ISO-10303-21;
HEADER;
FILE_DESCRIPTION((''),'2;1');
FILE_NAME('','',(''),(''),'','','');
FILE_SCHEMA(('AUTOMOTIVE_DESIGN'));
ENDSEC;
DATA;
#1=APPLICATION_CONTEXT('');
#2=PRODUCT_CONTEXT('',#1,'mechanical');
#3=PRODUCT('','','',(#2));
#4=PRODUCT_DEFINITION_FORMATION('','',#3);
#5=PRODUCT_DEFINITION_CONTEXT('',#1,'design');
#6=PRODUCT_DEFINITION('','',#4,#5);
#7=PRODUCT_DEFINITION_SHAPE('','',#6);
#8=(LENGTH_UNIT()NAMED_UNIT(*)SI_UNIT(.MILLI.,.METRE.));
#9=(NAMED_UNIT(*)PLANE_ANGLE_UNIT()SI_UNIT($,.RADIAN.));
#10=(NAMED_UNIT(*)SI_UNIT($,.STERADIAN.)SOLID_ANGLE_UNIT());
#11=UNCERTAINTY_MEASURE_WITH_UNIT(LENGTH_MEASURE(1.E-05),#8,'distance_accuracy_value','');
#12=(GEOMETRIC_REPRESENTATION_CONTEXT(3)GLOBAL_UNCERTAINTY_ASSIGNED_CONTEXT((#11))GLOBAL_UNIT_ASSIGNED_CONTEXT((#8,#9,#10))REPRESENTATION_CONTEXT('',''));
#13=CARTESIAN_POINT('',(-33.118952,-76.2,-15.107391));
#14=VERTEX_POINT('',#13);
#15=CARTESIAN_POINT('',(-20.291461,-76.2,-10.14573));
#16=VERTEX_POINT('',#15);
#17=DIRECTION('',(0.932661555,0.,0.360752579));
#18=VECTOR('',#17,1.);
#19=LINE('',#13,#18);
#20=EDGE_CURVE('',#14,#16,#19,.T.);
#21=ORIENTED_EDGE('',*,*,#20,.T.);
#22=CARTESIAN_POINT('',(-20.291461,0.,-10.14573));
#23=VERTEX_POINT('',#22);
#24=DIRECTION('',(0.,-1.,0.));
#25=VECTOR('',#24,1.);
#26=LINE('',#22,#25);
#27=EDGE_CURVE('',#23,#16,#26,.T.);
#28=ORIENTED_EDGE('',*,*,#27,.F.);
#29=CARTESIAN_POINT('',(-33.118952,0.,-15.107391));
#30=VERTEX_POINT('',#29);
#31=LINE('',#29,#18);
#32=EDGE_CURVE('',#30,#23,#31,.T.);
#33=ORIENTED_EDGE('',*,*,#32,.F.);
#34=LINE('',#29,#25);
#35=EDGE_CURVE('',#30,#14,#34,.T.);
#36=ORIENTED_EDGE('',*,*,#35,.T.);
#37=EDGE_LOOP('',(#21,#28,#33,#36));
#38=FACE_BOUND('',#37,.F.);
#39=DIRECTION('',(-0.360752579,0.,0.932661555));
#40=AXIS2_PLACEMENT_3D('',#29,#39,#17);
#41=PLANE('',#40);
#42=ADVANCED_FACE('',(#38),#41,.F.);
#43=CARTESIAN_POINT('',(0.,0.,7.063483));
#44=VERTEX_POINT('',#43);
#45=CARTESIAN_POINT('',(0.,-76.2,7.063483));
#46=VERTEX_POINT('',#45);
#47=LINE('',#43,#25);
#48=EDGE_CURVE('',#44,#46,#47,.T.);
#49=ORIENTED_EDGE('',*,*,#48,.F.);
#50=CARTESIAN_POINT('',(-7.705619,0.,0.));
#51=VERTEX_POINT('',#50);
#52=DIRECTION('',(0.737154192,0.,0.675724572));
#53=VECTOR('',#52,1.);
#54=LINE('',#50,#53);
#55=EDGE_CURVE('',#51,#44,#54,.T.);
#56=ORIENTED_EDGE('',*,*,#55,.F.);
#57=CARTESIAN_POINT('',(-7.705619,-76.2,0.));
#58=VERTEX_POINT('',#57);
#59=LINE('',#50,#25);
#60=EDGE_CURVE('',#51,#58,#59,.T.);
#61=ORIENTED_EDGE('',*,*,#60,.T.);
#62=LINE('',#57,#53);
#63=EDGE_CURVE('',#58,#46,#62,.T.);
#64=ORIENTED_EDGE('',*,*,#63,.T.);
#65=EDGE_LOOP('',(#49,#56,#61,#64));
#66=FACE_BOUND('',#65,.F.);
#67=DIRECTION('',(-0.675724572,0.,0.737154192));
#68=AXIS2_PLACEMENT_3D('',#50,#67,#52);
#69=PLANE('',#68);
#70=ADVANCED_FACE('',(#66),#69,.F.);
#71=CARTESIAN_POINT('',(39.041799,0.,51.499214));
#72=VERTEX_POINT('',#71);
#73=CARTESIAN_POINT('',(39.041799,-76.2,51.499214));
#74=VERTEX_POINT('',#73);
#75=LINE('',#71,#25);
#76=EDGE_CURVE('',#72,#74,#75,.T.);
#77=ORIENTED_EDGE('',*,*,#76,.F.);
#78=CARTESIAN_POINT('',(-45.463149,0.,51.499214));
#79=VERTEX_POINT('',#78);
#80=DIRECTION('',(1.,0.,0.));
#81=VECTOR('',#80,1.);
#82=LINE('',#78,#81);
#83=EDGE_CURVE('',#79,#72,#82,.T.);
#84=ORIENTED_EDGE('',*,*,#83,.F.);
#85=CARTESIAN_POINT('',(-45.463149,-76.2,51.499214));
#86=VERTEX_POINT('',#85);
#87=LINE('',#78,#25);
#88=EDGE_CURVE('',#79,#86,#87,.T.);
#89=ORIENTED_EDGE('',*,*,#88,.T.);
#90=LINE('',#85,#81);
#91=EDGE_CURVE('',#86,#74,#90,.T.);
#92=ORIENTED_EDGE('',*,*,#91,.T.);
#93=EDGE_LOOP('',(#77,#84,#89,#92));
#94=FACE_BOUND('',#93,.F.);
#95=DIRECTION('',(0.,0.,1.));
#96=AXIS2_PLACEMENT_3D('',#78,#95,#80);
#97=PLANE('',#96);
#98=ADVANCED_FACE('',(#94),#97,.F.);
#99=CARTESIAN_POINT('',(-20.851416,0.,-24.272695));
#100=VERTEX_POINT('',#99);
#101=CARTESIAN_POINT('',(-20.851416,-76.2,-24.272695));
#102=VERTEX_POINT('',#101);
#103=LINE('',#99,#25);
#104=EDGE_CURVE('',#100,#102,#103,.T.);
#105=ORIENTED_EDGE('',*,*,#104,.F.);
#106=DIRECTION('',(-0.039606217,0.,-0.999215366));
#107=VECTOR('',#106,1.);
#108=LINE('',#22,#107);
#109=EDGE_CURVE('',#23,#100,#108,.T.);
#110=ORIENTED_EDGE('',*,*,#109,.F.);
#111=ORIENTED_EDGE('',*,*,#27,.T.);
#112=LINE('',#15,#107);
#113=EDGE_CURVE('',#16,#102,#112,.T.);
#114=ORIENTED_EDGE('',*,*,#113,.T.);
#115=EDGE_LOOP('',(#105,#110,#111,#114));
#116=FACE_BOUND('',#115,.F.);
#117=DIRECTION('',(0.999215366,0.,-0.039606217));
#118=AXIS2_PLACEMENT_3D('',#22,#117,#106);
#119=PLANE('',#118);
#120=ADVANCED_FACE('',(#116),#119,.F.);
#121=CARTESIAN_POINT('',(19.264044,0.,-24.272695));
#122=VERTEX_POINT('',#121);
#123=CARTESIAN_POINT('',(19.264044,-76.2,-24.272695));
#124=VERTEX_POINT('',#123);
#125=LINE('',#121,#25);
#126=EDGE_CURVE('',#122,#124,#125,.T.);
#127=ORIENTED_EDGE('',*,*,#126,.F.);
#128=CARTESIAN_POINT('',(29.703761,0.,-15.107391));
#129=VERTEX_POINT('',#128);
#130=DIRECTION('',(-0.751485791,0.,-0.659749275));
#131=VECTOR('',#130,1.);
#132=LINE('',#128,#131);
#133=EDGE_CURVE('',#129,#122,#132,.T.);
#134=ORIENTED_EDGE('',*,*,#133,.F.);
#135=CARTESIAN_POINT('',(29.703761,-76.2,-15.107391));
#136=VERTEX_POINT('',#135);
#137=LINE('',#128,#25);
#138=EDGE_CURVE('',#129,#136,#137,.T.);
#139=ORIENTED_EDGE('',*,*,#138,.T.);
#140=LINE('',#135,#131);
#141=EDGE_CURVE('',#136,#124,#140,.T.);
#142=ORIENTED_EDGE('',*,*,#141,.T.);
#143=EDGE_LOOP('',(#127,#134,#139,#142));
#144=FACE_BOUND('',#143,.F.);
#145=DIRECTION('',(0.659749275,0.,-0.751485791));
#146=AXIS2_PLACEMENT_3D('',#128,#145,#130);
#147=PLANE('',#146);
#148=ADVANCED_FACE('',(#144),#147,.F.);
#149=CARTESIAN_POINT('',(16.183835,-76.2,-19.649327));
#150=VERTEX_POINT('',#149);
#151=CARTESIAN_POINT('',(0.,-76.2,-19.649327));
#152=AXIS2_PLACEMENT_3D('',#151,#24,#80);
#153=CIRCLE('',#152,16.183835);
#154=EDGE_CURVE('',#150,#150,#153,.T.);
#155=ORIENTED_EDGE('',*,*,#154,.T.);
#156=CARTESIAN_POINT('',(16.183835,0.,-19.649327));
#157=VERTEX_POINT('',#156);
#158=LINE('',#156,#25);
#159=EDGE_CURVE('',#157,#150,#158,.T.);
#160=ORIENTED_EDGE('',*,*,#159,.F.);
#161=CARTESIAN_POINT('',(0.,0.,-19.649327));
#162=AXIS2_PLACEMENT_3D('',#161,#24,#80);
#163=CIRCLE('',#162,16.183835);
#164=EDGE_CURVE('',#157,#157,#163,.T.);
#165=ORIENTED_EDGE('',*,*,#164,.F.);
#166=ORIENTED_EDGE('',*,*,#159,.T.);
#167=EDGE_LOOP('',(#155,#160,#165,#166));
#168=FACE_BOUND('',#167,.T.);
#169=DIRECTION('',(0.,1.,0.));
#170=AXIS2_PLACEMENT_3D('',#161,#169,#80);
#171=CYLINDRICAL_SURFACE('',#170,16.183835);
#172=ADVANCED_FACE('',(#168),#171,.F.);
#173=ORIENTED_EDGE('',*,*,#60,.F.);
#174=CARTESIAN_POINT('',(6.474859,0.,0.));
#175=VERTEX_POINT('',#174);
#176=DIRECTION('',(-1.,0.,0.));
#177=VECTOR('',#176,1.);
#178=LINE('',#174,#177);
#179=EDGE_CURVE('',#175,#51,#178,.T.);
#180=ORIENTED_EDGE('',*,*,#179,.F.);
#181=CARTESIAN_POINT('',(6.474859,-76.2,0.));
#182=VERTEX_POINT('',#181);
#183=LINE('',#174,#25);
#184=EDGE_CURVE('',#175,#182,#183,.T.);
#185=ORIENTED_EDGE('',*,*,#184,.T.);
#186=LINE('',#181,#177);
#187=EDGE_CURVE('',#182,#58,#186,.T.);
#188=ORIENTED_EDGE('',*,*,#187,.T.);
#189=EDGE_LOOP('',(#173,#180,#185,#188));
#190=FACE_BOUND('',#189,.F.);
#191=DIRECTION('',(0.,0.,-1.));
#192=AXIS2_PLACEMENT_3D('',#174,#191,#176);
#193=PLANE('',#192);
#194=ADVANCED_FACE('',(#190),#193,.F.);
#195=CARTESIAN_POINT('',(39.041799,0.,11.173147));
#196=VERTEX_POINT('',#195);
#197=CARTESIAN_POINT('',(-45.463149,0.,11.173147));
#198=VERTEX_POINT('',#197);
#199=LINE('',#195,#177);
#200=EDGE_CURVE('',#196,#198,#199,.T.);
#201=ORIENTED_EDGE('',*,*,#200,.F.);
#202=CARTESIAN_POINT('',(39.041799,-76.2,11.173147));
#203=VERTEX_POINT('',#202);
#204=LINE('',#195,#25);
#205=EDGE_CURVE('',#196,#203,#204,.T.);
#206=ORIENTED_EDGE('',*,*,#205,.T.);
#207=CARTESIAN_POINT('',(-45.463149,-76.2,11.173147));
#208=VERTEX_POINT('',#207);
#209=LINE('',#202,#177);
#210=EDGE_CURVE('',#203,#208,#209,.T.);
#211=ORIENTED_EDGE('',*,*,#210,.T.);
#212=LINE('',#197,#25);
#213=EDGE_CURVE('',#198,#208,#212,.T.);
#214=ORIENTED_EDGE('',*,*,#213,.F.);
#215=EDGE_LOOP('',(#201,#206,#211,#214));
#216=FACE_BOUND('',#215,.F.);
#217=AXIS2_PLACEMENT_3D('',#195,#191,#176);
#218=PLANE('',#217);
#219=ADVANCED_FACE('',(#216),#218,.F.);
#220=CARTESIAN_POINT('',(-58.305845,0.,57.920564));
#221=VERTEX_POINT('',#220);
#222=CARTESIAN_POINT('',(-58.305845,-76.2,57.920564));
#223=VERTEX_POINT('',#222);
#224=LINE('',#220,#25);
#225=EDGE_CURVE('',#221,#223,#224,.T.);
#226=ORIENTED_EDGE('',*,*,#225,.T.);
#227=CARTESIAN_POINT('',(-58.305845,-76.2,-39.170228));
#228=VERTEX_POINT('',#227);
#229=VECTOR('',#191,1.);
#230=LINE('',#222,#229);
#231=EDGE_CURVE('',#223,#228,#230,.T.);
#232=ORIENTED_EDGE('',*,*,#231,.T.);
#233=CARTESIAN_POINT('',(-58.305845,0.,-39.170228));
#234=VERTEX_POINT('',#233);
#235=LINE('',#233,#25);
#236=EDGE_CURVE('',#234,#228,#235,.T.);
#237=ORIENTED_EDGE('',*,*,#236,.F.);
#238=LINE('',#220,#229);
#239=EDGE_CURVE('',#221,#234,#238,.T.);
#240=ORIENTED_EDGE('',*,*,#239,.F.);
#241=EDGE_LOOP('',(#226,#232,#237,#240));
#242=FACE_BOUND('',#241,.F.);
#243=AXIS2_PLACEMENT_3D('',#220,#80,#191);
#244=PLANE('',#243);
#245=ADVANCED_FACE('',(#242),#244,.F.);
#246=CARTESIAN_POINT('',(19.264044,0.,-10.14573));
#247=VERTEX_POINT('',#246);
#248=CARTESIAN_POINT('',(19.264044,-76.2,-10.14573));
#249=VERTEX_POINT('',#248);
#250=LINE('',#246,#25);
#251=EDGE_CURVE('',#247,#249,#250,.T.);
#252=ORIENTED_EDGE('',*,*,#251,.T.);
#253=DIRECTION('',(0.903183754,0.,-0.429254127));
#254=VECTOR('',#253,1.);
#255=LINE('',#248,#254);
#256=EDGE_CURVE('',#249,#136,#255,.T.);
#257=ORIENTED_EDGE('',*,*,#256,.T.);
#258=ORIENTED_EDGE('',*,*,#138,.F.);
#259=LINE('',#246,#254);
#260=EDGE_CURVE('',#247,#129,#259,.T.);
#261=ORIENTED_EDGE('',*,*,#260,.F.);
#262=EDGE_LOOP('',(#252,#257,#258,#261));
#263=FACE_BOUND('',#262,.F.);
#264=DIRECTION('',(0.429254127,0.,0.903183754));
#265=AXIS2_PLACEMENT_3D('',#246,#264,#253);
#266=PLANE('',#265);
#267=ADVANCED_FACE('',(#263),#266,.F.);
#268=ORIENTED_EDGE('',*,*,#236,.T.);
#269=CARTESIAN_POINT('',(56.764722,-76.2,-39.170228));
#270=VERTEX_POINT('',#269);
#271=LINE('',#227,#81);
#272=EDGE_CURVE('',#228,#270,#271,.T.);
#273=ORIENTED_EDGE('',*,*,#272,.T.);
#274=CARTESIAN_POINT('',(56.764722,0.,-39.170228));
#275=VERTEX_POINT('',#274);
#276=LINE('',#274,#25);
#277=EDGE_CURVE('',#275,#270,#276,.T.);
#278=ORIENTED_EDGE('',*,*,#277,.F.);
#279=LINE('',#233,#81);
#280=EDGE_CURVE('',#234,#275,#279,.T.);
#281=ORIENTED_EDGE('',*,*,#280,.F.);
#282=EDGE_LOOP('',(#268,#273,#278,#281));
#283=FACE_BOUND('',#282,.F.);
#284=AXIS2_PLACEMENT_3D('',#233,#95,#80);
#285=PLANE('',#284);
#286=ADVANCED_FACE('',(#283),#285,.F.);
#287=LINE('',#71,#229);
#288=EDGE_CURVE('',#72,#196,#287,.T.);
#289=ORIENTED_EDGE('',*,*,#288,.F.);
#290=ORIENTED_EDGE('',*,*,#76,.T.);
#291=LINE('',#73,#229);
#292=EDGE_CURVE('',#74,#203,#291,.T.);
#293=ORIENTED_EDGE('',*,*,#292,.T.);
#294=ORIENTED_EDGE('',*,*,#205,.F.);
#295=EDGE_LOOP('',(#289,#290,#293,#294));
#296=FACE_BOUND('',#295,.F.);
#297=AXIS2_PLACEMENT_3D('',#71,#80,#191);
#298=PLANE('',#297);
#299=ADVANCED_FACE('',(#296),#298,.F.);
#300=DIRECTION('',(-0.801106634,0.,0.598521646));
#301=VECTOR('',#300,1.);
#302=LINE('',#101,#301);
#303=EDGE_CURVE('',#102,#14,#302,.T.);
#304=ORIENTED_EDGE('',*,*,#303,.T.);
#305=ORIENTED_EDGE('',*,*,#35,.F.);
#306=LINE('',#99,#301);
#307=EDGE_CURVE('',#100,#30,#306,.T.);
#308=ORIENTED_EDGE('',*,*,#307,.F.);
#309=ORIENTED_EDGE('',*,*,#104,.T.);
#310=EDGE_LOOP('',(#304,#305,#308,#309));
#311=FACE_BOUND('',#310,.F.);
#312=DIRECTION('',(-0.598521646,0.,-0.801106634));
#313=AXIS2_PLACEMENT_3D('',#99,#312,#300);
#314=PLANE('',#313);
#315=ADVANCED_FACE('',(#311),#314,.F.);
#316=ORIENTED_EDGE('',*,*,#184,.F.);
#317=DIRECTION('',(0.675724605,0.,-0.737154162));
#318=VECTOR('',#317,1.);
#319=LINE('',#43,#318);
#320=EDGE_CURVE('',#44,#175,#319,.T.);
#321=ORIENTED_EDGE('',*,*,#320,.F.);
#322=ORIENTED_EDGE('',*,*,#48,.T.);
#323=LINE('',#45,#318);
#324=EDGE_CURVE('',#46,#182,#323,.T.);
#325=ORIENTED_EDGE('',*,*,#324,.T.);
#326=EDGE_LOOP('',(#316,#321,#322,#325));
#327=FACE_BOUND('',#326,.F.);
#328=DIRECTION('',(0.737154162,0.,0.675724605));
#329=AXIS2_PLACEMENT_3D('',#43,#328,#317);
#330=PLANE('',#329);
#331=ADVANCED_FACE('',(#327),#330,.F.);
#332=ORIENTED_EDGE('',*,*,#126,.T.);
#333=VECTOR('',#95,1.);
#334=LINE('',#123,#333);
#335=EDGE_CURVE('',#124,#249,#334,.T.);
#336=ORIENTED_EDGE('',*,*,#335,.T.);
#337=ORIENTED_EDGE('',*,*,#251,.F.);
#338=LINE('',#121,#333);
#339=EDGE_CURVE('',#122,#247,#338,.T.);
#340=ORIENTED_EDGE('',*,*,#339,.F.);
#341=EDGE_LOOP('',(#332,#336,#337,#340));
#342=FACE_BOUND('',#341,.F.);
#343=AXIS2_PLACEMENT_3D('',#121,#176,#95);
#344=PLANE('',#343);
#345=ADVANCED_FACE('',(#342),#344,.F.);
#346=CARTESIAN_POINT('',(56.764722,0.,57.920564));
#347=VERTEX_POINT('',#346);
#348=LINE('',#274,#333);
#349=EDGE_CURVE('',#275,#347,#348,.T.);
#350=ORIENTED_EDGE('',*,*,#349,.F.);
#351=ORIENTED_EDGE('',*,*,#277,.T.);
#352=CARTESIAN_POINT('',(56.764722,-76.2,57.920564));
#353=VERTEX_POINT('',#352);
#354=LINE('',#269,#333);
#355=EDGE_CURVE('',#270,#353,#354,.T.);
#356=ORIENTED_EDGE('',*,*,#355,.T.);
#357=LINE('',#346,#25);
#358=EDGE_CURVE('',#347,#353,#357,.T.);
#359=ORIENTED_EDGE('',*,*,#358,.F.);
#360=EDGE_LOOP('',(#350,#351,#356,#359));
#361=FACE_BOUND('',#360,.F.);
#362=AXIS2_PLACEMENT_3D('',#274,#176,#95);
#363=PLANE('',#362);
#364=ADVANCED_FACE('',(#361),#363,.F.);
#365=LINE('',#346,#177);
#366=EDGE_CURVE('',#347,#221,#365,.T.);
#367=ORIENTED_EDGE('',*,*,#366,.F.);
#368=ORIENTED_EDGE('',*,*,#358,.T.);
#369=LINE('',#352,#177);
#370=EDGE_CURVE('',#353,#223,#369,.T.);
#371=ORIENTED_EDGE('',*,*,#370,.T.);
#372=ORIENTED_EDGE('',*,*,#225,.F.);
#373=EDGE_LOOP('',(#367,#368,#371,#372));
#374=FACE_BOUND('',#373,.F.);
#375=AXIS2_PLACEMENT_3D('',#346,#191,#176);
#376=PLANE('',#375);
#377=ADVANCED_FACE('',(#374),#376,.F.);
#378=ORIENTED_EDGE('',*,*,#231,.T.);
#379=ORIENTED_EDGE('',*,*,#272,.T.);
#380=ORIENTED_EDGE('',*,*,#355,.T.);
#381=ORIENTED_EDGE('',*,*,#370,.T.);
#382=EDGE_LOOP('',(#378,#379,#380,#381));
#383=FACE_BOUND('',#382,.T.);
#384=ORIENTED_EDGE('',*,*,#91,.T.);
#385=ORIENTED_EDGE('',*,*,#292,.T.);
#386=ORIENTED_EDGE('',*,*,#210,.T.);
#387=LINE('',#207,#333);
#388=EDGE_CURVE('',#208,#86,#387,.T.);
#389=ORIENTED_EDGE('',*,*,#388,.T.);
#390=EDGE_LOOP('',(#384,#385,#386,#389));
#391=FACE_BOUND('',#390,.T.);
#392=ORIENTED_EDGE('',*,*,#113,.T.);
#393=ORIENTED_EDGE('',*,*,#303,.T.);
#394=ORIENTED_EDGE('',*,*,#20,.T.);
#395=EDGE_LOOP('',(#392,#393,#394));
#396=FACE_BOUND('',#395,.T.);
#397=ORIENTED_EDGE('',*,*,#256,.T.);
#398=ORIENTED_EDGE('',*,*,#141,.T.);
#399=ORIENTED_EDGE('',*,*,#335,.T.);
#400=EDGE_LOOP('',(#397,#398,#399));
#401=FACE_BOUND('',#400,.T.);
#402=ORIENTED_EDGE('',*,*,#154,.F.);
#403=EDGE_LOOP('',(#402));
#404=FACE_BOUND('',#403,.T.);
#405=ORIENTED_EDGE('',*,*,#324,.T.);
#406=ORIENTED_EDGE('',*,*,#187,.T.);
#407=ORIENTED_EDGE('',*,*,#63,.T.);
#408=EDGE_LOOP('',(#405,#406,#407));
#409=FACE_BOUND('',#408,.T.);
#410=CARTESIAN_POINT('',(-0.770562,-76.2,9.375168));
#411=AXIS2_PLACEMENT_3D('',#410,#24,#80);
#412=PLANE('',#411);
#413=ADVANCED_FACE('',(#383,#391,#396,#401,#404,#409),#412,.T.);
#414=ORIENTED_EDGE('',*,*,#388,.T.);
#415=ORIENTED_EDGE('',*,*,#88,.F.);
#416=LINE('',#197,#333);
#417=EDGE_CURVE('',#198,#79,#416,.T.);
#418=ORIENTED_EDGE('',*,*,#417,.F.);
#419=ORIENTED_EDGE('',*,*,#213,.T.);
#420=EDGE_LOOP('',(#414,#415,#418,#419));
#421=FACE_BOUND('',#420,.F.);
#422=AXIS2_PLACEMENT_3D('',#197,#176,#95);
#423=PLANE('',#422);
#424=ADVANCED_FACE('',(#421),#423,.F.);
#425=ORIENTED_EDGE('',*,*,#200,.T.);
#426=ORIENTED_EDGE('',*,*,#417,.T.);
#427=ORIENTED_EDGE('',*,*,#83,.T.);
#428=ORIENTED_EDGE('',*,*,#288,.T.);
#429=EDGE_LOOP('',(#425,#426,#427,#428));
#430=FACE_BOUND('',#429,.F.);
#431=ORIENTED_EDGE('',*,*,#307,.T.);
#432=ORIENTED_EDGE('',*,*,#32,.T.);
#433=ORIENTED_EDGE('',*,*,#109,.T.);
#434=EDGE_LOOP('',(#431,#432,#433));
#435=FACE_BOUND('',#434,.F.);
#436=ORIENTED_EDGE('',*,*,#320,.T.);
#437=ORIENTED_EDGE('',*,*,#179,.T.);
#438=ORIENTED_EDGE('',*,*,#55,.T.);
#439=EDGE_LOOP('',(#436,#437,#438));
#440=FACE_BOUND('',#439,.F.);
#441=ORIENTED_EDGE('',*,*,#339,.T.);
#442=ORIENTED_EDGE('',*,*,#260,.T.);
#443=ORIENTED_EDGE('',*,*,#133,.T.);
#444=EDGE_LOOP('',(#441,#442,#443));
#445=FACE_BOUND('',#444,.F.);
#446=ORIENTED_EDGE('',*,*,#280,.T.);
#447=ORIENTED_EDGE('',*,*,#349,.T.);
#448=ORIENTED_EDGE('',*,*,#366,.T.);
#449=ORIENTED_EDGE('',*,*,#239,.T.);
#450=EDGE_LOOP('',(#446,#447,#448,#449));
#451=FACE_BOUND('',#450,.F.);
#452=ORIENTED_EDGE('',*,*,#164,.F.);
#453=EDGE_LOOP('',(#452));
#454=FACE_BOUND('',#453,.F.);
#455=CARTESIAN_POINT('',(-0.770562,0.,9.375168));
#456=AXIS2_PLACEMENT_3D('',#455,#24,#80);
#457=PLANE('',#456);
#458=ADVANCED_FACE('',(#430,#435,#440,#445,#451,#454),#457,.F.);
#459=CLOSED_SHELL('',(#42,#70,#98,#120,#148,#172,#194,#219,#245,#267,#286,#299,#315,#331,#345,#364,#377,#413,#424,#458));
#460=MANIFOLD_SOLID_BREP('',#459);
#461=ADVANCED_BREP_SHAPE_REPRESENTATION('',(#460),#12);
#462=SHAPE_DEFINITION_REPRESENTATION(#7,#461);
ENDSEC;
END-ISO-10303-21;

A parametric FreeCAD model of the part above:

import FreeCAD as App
import Part
import Sketcher
from FreeCAD import Vector
Q = App.Units.Quantity


def add_polygon(sketch, points):
    """Adds a closed chain of lines whose ends are joined by coincident constraints."""
    first, n = sketch.GeometryCount, len(points)
    for a, b in zip(points, points[1:] + points[:1]):
        sketch.addGeometry(Part.LineSegment(App.Vector(*a, 0), App.Vector(*b, 0)), False)
    for i in range(n):
        sketch.addConstraint(Sketcher.Constraint("Coincident", first + i, 2, first + (i + 1) % n, 1))

doc = App.newDocument("Part")
body = doc.addObject("PartDesign::Body", "Body")

# Sketch on XZ plane
sketch1 = body.newObject("Sketcher::SketchObject", "Sketch")
sketch1.AttachmentSupport = (doc.getObject("XZ_Plane"), [""])
sketch1.MapMode = "FlatFace"
add_polygon(sketch1, [(57, 58), (-58, 58), (-58, -39), (57, -39)])  # lines 0-3
add_polygon(sketch1, [(-21, -24), (-33, -15), (-20, -10)])  # lines 4-6
sketch1.addGeometry(Part.Circle(Vector(0, -20, 0), Vector(0, 0, 1), 16), False)  # 7
add_polygon(sketch1, [(30, -15), (19, -24), (19, -10)])  # lines 8-10
add_polygon(sketch1, [(0, 7), (6, 0), (-8, 0)])  # lines 11-13
add_polygon(sketch1, [(-45, 51), (39, 51), (39, 11), (-45, 11)])  # lines 14-17
sketch1.addConstraint(Sketcher.Constraint("Horizontal", 0))
sketch1.addConstraint(Sketcher.Constraint("Vertical", 1))
sketch1.addConstraint(Sketcher.Constraint("Horizontal", 2))
sketch1.addConstraint(Sketcher.Constraint("Vertical", 3))
sketch1.addConstraint(Sketcher.Constraint("Vertical", 9))
sketch1.addConstraint(Sketcher.Constraint("Horizontal", 12))
sketch1.addConstraint(Sketcher.Constraint("Horizontal", 14))
sketch1.addConstraint(Sketcher.Constraint("Vertical", 15))
sketch1.addConstraint(Sketcher.Constraint("Horizontal", 16))
sketch1.addConstraint(Sketcher.Constraint("Vertical", 17))
sketch1.addConstraint(Sketcher.Constraint("PointOnObject", 7, 3, -2))
sketch1.addConstraint(Sketcher.Constraint("PointOnObject", 11, 2, -1))
sketch1.addConstraint(Sketcher.Constraint("PointOnObject", 13, 2, -2))
sketch1.addConstraint(Sketcher.Constraint("Perpendicular", 11, 13))
sketch1.addConstraint(Sketcher.Constraint("Horizontal", 6, 2, 8, 2))
sketch1.addConstraint(Sketcher.Constraint("Horizontal", 5, 2, 9, 2))
sketch1.addConstraint(Sketcher.Constraint("Horizontal", 4, 2, 10, 2))
sketch1.addConstraint(Sketcher.Constraint("Diameter", 7, 32.36767))
sketch1.addConstraint(Sketcher.Constraint("Distance", 8, 13.892102))
sketch1.addConstraint(Sketcher.Constraint("Distance", 13, 10.453198))
sketch1.addConstraint(Sketcher.Constraint("DistanceX", 12, 2, 12, 1, 14.180478))
sketch1.addConstraint(Sketcher.Constraint("DistanceX", 14, 1, 14, 2, 84.504948))
sketch1.addConstraint(Sketcher.Constraint("DistanceY", 1, 2, 1, 1, 97.090792))
sketch1.addConstraint(Sketcher.Constraint("DistanceX", -1, 1, 14, 2, 39.041799))
sketch1.addConstraint(Sketcher.Constraint("DistanceY", 1, 2, 7, 3, 19.520901))
sketch1.addConstraint(Sketcher.Constraint("DistanceY", 1, 2, 5, 2, 29.024498))
sketch1.addConstraint(Sketcher.Constraint("DistanceX", 11, 2, 10, 2, 23.228902))
sketch1.addConstraint(Sketcher.Constraint("Distance", 5, 13.75364))
sketch1.addConstraint(Sketcher.Constraint("Distance", 6, 14.138058))
sketch1.addConstraint(Sketcher.Constraint("DistanceX", 0, 2, 0, 1, 115.070567))
sketch1.addConstraint(Sketcher.Constraint("DistanceY", 9, 1, 9, 2, 14.126965))
sketch1.addConstraint(Sketcher.Constraint("DistanceY", 15, 2, 15, 1, 40.326067))
sketch1.addConstraint(Sketcher.Constraint("DistanceY", 1, 2, -1, 1, 39.170228))
sketch1.addConstraint(Sketcher.Constraint("DistanceY", 4, 2, -1, 1, 15.107391))
sketch1.addConstraint(Sketcher.Constraint("DistanceX", 5, 2, -1, 1, 20.291461))
sketch1.addConstraint(Sketcher.Constraint("DistanceX", 1, 2, 6, 2, 37.454429))
sketch1.addConstraint(Sketcher.Constraint("DistanceY", 14, 2, 3, 2, 6.42135))
pad1 = body.newObject("PartDesign::Pad", "Pad")
pad1.Profile = sketch1
pad1.Length = Q("3 in")

doc.recompute()
